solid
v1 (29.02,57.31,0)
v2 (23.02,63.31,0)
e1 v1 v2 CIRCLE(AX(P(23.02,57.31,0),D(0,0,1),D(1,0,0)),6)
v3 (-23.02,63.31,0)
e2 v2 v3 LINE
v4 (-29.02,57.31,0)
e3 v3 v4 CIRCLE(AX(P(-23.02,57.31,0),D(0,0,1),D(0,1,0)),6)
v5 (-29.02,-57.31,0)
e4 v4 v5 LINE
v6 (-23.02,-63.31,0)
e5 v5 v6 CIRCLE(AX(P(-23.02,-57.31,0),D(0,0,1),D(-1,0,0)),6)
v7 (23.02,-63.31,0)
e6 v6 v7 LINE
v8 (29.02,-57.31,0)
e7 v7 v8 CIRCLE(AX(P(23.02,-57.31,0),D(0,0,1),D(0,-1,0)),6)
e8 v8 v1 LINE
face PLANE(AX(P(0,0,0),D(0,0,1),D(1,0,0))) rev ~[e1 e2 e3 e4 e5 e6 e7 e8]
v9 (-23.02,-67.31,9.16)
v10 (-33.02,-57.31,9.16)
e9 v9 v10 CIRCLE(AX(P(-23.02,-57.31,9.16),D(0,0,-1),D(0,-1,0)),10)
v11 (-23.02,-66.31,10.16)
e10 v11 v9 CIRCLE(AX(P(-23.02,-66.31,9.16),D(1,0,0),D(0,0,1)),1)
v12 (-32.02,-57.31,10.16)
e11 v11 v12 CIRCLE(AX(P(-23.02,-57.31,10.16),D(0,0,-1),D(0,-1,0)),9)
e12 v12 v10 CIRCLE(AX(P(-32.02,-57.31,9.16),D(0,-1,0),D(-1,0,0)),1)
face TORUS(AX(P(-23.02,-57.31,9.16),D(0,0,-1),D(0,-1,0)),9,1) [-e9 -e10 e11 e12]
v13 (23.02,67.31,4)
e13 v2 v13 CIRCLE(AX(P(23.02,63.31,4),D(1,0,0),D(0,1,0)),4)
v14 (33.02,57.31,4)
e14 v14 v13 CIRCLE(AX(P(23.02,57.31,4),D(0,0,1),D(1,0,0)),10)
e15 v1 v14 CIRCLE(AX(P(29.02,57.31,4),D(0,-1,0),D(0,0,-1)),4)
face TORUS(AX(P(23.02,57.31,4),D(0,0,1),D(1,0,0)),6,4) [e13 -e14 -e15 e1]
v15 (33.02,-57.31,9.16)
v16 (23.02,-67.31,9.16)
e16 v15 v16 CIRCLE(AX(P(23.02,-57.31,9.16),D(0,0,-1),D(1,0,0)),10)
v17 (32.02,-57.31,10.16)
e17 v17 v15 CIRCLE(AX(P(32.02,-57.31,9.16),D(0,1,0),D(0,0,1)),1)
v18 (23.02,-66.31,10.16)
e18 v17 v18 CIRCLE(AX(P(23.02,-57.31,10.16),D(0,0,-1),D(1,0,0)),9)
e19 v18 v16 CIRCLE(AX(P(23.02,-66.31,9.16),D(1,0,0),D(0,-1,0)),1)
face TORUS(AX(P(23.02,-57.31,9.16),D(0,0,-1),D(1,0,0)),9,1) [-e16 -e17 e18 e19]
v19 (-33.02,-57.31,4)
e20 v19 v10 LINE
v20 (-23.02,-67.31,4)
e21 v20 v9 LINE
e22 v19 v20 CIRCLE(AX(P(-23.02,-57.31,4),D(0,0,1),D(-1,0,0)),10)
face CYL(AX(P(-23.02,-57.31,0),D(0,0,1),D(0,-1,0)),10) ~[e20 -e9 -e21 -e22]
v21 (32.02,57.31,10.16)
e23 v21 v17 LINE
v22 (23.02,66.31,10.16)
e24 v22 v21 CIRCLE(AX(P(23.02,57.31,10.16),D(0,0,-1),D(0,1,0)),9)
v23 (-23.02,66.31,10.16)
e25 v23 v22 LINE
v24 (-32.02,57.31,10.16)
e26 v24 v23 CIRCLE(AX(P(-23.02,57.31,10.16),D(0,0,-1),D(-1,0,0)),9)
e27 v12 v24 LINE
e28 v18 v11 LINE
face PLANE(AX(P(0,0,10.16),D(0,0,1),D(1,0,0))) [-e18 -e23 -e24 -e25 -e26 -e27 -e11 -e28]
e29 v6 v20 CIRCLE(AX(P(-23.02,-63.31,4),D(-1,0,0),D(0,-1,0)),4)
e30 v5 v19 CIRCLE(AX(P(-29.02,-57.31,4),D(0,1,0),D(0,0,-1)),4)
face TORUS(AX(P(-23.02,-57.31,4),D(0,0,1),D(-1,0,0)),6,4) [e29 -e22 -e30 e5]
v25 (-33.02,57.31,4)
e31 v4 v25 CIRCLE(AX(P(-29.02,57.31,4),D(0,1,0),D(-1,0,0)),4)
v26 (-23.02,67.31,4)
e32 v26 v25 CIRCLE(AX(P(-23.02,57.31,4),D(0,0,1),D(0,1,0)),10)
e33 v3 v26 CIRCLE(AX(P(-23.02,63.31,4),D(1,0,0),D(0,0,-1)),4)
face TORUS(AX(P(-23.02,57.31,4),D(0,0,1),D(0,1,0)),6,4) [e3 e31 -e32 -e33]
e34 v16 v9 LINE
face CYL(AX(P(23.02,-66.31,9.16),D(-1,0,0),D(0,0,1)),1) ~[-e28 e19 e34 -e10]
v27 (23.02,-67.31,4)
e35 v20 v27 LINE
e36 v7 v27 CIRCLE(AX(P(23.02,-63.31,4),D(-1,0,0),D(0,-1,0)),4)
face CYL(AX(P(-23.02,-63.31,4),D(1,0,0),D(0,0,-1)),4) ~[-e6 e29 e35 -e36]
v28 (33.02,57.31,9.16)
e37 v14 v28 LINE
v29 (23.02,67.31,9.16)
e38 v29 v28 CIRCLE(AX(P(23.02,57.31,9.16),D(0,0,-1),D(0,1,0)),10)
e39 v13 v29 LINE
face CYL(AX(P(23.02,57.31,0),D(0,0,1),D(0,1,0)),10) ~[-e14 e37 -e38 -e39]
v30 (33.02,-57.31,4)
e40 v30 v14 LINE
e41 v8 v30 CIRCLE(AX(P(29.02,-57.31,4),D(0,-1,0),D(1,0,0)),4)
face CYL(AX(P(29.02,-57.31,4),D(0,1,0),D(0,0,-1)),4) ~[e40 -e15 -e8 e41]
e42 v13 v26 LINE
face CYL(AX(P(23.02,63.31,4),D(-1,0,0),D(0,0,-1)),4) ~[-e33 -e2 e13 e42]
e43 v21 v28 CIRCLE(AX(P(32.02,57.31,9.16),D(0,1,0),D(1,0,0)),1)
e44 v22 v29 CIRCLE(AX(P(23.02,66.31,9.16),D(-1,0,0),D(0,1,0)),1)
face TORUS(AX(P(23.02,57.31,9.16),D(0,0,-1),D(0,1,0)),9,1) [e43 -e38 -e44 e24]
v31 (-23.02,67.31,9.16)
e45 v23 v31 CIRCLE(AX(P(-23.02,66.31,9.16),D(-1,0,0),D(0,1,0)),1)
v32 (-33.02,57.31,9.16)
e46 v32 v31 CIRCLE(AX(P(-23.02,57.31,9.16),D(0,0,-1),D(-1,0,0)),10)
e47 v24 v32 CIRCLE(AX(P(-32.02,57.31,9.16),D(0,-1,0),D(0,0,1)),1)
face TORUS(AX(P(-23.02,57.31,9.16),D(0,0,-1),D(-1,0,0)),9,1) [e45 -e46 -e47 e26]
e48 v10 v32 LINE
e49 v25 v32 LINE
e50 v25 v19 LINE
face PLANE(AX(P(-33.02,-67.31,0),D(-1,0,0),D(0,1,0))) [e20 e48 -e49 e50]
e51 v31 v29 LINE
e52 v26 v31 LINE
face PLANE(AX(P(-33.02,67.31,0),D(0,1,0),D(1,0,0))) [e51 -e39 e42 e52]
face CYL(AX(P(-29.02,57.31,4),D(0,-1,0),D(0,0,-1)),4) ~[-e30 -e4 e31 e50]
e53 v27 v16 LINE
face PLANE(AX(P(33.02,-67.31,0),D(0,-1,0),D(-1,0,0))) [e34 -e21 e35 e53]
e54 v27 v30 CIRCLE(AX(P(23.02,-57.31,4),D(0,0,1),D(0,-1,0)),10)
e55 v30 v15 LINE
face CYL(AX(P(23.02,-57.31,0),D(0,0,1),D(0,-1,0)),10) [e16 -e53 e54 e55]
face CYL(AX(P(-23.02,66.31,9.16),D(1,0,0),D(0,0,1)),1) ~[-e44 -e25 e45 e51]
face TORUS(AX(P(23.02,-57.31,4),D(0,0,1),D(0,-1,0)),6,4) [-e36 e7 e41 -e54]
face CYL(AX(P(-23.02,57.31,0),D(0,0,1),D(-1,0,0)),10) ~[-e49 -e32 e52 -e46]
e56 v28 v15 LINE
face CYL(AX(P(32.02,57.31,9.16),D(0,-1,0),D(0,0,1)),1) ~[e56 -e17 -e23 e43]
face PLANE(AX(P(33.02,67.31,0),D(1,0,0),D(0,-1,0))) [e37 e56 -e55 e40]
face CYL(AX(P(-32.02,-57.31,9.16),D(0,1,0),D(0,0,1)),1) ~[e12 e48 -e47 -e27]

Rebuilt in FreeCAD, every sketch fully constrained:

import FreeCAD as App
import Part
import Sketcher
Q = App.Units.Quantity


def edges_at(feature, points):
    """Names of the edges that pass closest to the given points."""
    edges = feature.Shape.Edges
    near = lambda p: min(range(len(edges)), key=lambda i: edges[i].distToShape(Part.Vertex(*p))[0])
    return sorted({f"Edge{near(p) + 1}" for p in points})

doc = App.newDocument("Part")
params = doc.addObject("Spreadsheet::Sheet", "Params")
for row, (alias, value) in enumerate([
    ("sketch1_width", "2.6 in"),
    ("sketch1_height", "5.3 in"),
    ("pad1_length", "0.4 in"),
    ("fillet_radius", "0.3937008 in"),
    ("fillet2_radius", "4 mm"),
    ("fillet3_radius", "1 mm"),
], start=1):
    params.set(f"A{row}", alias)
    params.set(f"B{row}", "=" + value)
    params.setAlias(f"B{row}", alias)

body = doc.addObject("PartDesign::Body", "Body")

sketch1 = doc.addObject("Sketcher::SketchObject", "Sketch")
body.addObject(sketch1)
sketch1.AttachmentSupport = (doc.XY_Plane, [""])
sketch1.MapMode = "FlatFace"
sketch1.addGeometry([
    Part.LineSegment(App.Vector(-33, -67, 0), App.Vector(33, -67, 0)),
    Part.LineSegment(App.Vector(33, -67, 0), App.Vector(33, 67, 0)),
    Part.LineSegment(App.Vector(33, 67, 0), App.Vector(-33, 67, 0)),
    Part.LineSegment(App.Vector(-33, 67, 0), App.Vector(-33, -67, 0)),
], False)
sketch1.addConstraint([
    Sketcher.Constraint("Coincident", 0, 2, 1, 1),
    Sketcher.Constraint("Coincident", 1, 2, 2, 1),
    Sketcher.Constraint("Coincident", 2, 2, 3, 1),
    Sketcher.Constraint("Coincident", 3, 2, 0, 1),
    Sketcher.Constraint("Horizontal", 0),
    Sketcher.Constraint("Vertical", 1),
    Sketcher.Constraint("Horizontal", 2),
    Sketcher.Constraint("Vertical", 3),
    Sketcher.Constraint("Symmetric", 0, 2, 2, 2, -1, 1),
    Sketcher.Constraint("DistanceX", 0, 1, 0, 2, Q("2.6 in")),
    Sketcher.Constraint("DistanceY", 1, 1, 1, 2, Q("5.3 in")),
])
sketch1.setExpression("Constraints[9]", "Params.sketch1_width")
sketch1.setExpression("Constraints[10]", "Params.sketch1_height")
pad1 = doc.addObject("PartDesign::Pad", "Pad")
body.addObject(pad1)
pad1.Profile = sketch1
pad1.setExpression("Length", "Params.pad1_length")
doc.recompute()

fillet = doc.addObject("PartDesign::Fillet", "Fillet")
body.addObject(fillet)
fillet.Base = (pad1, edges_at(pad1, [
    (33.02, 67.31, 5.08),
    (-33.02, 67.31, 5.08),
    (33.02, -67.31, 5.08),
    (-33.02, -67.31, 5.08),
]))
fillet.setExpression("Radius", "Params.fillet_radius")
doc.recompute()

fillet2 = doc.addObject("PartDesign::Fillet", "Fillet001")
body.addObject(fillet2)
fillet2.Base = (fillet, edges_at(fillet, [
    (30.091, -64.381, 0),
    (0, -67.31, 0),
    (-30.091, -64.381, 0),
    (-33.02, 0, 0),
    (-30.091, 64.381, 0),
    (0, 67.31, 0),
    (30.091, 64.381, 0),
    (33.02, 0, 0),
]))
fillet2.setExpression("Radius", "Params.fillet2_radius")
doc.recompute()

fillet3 = doc.addObject("PartDesign::Fillet", "Fillet002")
body.addObject(fillet3)
fillet3.Base = (fillet2, edges_at(fillet2, [
    (30.091, 64.381, 10.16),
    (0, 67.31, 10.16),
    (-30.091, 64.381, 10.16),
    (-33.02, 0, 10.16),
    (-30.091, -64.381, 10.16),
    (0, -67.31, 10.16),
    (30.091, -64.381, 10.16),
    (33.02, 0, 10.16),
]))
fillet3.setExpression("Radius", "Params.fillet3_radius")

doc.recompute()
